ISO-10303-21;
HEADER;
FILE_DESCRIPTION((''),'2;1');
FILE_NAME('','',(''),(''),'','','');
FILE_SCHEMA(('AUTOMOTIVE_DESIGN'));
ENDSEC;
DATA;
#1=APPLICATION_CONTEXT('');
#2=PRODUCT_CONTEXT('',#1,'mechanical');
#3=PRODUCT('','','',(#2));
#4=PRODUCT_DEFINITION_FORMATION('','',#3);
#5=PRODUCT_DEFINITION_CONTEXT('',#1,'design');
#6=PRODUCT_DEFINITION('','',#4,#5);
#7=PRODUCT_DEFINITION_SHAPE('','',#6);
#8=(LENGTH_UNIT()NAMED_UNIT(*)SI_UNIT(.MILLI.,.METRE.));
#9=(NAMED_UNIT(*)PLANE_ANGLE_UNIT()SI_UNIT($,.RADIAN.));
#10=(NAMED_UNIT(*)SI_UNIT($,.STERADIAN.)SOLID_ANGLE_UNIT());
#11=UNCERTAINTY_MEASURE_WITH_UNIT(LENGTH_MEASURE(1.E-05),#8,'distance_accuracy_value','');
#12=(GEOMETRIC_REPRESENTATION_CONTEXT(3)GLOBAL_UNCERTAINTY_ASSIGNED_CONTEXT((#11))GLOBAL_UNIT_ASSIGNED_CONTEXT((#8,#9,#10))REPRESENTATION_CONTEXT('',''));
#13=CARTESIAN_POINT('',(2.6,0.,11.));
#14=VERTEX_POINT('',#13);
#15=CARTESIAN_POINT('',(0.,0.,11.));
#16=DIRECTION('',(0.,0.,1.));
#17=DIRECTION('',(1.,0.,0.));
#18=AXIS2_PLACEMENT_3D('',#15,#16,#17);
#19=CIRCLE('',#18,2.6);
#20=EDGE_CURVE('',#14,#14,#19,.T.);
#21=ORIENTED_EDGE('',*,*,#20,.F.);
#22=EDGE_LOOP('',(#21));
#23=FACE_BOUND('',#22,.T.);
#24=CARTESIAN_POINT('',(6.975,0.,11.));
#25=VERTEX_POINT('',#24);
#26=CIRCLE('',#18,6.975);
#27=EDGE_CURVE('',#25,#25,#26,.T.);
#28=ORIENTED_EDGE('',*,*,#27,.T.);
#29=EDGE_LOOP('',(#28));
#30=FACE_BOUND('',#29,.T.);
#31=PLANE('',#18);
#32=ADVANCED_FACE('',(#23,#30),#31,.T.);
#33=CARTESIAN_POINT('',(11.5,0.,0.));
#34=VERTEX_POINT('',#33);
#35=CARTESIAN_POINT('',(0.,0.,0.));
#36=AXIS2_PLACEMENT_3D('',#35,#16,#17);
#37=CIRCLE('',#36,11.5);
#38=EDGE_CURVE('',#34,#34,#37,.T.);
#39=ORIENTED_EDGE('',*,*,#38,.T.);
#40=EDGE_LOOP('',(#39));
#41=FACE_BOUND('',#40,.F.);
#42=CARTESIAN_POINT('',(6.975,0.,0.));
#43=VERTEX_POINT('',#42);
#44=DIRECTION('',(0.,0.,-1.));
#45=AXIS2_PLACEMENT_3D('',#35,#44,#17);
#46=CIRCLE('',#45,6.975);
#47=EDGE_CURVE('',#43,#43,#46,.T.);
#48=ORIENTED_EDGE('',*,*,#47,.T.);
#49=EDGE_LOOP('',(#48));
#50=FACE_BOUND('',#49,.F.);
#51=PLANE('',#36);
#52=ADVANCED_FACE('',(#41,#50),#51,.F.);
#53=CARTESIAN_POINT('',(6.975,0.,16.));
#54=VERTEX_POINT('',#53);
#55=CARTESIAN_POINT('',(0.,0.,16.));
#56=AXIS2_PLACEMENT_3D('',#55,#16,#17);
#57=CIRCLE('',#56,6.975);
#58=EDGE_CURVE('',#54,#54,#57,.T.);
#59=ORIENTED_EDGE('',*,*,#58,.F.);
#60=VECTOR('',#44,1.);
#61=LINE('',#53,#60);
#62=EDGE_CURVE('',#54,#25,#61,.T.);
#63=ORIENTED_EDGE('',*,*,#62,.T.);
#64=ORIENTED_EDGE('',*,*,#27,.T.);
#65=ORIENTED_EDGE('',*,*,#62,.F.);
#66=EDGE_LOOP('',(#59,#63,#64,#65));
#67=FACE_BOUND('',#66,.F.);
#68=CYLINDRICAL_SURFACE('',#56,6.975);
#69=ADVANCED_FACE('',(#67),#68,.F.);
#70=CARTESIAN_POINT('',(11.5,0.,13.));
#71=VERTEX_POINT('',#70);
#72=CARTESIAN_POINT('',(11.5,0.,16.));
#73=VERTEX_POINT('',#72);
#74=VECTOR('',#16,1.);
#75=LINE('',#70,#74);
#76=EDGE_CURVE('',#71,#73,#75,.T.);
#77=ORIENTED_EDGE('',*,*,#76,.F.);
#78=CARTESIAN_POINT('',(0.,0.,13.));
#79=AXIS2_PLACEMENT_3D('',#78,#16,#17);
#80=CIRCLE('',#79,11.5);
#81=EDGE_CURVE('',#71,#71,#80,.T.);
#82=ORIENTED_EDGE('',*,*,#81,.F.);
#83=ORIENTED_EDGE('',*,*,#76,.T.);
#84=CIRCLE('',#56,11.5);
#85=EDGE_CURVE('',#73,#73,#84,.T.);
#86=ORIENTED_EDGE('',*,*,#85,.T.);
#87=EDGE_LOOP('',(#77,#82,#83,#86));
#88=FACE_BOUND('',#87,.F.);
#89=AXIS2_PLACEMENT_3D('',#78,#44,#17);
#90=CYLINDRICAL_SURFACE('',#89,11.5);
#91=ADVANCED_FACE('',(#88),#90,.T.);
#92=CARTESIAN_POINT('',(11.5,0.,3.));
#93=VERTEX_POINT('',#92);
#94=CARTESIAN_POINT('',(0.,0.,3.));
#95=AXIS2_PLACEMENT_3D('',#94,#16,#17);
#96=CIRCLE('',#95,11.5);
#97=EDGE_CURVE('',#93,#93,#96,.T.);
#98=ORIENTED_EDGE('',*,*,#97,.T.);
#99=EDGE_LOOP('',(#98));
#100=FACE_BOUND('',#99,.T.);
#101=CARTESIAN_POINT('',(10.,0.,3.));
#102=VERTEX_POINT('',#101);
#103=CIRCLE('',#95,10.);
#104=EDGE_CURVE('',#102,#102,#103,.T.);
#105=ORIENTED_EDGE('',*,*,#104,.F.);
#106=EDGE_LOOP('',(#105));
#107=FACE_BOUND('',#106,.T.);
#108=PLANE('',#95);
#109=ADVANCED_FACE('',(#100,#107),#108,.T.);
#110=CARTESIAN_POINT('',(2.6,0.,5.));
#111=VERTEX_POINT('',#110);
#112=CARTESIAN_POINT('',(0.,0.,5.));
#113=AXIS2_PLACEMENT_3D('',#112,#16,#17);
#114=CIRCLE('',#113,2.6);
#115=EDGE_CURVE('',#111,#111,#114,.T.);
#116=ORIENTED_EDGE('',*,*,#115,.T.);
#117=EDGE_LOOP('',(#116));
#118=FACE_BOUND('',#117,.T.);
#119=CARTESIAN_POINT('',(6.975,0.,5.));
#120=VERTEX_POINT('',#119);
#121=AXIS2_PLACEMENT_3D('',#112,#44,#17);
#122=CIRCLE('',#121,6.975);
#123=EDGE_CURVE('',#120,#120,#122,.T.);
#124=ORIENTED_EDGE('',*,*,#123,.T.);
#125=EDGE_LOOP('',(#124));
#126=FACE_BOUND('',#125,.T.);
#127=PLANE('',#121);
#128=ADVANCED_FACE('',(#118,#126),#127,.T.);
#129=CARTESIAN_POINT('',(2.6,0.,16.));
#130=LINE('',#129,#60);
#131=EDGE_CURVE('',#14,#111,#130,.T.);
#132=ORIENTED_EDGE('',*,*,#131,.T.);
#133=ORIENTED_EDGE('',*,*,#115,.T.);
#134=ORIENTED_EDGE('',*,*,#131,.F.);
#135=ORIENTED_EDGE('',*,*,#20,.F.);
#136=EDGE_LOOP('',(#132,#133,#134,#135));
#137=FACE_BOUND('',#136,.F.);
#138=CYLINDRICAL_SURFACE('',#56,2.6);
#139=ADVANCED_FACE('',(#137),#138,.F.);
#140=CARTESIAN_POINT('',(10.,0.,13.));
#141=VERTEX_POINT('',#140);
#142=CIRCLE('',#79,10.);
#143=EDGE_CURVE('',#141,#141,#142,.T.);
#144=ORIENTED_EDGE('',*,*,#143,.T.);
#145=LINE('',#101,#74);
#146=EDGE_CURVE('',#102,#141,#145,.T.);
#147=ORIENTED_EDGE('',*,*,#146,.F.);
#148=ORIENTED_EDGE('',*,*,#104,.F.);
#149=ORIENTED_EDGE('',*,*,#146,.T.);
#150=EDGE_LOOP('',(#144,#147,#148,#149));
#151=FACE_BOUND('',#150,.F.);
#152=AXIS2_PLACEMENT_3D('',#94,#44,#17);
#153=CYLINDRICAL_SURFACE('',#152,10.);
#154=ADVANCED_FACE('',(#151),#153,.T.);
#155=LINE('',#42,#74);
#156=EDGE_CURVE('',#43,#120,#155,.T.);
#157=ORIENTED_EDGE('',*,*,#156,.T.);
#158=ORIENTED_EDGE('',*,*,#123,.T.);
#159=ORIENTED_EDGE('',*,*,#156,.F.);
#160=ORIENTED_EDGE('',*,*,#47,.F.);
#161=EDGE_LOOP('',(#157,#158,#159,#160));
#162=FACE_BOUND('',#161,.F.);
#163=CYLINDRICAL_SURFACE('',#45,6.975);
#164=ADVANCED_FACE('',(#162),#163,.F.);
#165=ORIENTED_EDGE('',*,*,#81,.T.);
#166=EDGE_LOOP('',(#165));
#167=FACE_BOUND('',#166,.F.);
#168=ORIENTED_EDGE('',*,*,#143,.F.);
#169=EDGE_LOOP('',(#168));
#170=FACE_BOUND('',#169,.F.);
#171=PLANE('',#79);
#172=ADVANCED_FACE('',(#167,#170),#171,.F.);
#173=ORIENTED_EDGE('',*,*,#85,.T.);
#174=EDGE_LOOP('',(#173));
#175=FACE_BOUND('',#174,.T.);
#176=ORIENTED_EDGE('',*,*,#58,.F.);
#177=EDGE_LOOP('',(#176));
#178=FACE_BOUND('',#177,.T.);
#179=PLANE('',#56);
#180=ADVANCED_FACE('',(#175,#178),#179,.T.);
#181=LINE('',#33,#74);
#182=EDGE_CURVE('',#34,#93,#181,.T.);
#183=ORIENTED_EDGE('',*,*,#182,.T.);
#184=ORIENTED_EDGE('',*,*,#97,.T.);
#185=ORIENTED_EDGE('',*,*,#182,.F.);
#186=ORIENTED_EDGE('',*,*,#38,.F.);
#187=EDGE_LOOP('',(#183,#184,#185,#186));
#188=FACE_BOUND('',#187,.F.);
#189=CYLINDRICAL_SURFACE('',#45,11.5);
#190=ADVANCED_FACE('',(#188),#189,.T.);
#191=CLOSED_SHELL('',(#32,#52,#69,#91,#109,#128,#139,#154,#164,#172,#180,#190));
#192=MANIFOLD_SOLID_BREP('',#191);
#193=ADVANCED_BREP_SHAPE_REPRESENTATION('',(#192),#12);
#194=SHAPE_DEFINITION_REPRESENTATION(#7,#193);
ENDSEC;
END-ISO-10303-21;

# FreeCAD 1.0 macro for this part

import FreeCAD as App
import Part
import Sketcher

V = App.Vector
Q = App.Units.Quantity

doc = App.newDocument("Part")
body = doc.addObject("PartDesign::Body", "Body")

sketch1 = body.newObject("Sketcher::SketchObject", "Sketch")
sketch1.AttachmentSupport = (doc.getObject("XY_Plane"), [""])
sketch1.MapMode = "FlatFace"
sketch1.addGeometry(Part.Circle(V(0, 0, 0), V(0, 0, 1), 12), False)
sketch1.addConstraint([
    Sketcher.Constraint("Coincident", 0, 3, -1, 1),
    Sketcher.Constraint("Diameter", 0, Q("23 mm")),
])
pad1 = body.newObject("PartDesign::Pad", "Pad")
pad1.Profile = sketch1
pad1.Length = 3

sketch2 = body.newObject("Sketcher::SketchObject", "Sketch001")
sketch2.AttachmentSupport = (doc.getObject("XY_Plane"), [""])
sketch2.MapMode = "FlatFace"
sketch2.AttachmentOffset = App.Placement(V(0, 0, 3), App.Rotation())
sketch2.addGeometry(Part.Circle(V(0, 0, 0), V(0, 0, 1), 10), False)
sketch2.addConstraint([
    Sketcher.Constraint("Coincident", 0, 3, -1, 1),
    Sketcher.Constraint("Diameter", 0, Q("20 mm")),
])
pad2 = body.newObject("PartDesign::Pad", "Pad001")
pad2.Profile = sketch2
pad2.Length = 10

sketch3 = body.newObject("Sketcher::SketchObject", "Sketch002")
sketch3.AttachmentSupport = (doc.getObject("XY_Plane"), [""])
sketch3.MapMode = "FlatFace"
sketch3.AttachmentOffset = App.Placement(V(0, 0, 13), App.Rotation())
sketch3.addGeometry(Part.Circle(V(0, 0, 0), V(0, 0, 1), 12), False)
sketch3.addConstraint([
    Sketcher.Constraint("Coincident", 0, 3, -1, 1),
    Sketcher.Constraint("Diameter", 0, Q("23 mm")),
])
pad3 = body.newObject("PartDesign::Pad", "Pad002")
pad3.Profile = sketch3
pad3.Length = 3

sketch4 = body.newObject("Sketcher::SketchObject", "Sketch003")
sketch4.AttachmentSupport = (doc.getObject("XY_Plane"), [""])
sketch4.MapMode = "FlatFace"
sketch4.AttachmentOffset = App.Placement(V(0, 0, 16), App.Rotation())
sketch4.addGeometry(Part.Circle(V(0, 0, 0), V(0, 0, 1), 2.6), False)
sketch4.addConstraint([
    Sketcher.Constraint("Coincident", 0, 3, -1, 1),
    Sketcher.Constraint("Diameter", 0, Q("5.2 mm")),
])
pocket1 = body.newObject("PartDesign::Pocket", "Pocket")
pocket1.Profile = sketch4
pocket1.Length = 16

sketch5 = body.newObject("Sketcher::SketchObject", "Sketch004")
sketch5.AttachmentSupport = (doc.getObject("XY_Plane"), [""])
sketch5.MapMode = "FlatFace"
sketch5.AttachmentOffset = App.Placement(V(0, 0, 16), App.Rotation())
sketch5.addGeometry(Part.Circle(V(0, 0, 0), V(0, 0, 1), 7), False)
sketch5.addConstraint([
    Sketcher.Constraint("Coincident", 0, 3, -1, 1),
    Sketcher.Constraint("Diameter", 0, Q("13.95 mm")),
])
pocket2 = body.newObject("PartDesign::Pocket", "Pocket001")
pocket2.Profile = sketch5
pocket2.Length = 5

sketch6 = body.newObject("Sketcher::SketchObject", "Sketch005")
sketch6.AttachmentSupport = (doc.getObject("XY_Plane"), [""])
sketch6.MapMode = "FlatFace"
sketch6.addGeometry(Part.Circle(V(0, 0, 0), V(0, 0, 1), 7), False)
sketch6.addConstraint([
    Sketcher.Constraint("Coincident", 0, 3, -1, 1),
    Sketcher.Constraint("Diameter", 0, Q("13.95 mm")),
])
pocket3 = body.newObject("PartDesign::Pocket", "Pocket002")
pocket3.Profile = sketch6
pocket3.Length = 5
pocket3.Reversed = True

doc.recompute()
